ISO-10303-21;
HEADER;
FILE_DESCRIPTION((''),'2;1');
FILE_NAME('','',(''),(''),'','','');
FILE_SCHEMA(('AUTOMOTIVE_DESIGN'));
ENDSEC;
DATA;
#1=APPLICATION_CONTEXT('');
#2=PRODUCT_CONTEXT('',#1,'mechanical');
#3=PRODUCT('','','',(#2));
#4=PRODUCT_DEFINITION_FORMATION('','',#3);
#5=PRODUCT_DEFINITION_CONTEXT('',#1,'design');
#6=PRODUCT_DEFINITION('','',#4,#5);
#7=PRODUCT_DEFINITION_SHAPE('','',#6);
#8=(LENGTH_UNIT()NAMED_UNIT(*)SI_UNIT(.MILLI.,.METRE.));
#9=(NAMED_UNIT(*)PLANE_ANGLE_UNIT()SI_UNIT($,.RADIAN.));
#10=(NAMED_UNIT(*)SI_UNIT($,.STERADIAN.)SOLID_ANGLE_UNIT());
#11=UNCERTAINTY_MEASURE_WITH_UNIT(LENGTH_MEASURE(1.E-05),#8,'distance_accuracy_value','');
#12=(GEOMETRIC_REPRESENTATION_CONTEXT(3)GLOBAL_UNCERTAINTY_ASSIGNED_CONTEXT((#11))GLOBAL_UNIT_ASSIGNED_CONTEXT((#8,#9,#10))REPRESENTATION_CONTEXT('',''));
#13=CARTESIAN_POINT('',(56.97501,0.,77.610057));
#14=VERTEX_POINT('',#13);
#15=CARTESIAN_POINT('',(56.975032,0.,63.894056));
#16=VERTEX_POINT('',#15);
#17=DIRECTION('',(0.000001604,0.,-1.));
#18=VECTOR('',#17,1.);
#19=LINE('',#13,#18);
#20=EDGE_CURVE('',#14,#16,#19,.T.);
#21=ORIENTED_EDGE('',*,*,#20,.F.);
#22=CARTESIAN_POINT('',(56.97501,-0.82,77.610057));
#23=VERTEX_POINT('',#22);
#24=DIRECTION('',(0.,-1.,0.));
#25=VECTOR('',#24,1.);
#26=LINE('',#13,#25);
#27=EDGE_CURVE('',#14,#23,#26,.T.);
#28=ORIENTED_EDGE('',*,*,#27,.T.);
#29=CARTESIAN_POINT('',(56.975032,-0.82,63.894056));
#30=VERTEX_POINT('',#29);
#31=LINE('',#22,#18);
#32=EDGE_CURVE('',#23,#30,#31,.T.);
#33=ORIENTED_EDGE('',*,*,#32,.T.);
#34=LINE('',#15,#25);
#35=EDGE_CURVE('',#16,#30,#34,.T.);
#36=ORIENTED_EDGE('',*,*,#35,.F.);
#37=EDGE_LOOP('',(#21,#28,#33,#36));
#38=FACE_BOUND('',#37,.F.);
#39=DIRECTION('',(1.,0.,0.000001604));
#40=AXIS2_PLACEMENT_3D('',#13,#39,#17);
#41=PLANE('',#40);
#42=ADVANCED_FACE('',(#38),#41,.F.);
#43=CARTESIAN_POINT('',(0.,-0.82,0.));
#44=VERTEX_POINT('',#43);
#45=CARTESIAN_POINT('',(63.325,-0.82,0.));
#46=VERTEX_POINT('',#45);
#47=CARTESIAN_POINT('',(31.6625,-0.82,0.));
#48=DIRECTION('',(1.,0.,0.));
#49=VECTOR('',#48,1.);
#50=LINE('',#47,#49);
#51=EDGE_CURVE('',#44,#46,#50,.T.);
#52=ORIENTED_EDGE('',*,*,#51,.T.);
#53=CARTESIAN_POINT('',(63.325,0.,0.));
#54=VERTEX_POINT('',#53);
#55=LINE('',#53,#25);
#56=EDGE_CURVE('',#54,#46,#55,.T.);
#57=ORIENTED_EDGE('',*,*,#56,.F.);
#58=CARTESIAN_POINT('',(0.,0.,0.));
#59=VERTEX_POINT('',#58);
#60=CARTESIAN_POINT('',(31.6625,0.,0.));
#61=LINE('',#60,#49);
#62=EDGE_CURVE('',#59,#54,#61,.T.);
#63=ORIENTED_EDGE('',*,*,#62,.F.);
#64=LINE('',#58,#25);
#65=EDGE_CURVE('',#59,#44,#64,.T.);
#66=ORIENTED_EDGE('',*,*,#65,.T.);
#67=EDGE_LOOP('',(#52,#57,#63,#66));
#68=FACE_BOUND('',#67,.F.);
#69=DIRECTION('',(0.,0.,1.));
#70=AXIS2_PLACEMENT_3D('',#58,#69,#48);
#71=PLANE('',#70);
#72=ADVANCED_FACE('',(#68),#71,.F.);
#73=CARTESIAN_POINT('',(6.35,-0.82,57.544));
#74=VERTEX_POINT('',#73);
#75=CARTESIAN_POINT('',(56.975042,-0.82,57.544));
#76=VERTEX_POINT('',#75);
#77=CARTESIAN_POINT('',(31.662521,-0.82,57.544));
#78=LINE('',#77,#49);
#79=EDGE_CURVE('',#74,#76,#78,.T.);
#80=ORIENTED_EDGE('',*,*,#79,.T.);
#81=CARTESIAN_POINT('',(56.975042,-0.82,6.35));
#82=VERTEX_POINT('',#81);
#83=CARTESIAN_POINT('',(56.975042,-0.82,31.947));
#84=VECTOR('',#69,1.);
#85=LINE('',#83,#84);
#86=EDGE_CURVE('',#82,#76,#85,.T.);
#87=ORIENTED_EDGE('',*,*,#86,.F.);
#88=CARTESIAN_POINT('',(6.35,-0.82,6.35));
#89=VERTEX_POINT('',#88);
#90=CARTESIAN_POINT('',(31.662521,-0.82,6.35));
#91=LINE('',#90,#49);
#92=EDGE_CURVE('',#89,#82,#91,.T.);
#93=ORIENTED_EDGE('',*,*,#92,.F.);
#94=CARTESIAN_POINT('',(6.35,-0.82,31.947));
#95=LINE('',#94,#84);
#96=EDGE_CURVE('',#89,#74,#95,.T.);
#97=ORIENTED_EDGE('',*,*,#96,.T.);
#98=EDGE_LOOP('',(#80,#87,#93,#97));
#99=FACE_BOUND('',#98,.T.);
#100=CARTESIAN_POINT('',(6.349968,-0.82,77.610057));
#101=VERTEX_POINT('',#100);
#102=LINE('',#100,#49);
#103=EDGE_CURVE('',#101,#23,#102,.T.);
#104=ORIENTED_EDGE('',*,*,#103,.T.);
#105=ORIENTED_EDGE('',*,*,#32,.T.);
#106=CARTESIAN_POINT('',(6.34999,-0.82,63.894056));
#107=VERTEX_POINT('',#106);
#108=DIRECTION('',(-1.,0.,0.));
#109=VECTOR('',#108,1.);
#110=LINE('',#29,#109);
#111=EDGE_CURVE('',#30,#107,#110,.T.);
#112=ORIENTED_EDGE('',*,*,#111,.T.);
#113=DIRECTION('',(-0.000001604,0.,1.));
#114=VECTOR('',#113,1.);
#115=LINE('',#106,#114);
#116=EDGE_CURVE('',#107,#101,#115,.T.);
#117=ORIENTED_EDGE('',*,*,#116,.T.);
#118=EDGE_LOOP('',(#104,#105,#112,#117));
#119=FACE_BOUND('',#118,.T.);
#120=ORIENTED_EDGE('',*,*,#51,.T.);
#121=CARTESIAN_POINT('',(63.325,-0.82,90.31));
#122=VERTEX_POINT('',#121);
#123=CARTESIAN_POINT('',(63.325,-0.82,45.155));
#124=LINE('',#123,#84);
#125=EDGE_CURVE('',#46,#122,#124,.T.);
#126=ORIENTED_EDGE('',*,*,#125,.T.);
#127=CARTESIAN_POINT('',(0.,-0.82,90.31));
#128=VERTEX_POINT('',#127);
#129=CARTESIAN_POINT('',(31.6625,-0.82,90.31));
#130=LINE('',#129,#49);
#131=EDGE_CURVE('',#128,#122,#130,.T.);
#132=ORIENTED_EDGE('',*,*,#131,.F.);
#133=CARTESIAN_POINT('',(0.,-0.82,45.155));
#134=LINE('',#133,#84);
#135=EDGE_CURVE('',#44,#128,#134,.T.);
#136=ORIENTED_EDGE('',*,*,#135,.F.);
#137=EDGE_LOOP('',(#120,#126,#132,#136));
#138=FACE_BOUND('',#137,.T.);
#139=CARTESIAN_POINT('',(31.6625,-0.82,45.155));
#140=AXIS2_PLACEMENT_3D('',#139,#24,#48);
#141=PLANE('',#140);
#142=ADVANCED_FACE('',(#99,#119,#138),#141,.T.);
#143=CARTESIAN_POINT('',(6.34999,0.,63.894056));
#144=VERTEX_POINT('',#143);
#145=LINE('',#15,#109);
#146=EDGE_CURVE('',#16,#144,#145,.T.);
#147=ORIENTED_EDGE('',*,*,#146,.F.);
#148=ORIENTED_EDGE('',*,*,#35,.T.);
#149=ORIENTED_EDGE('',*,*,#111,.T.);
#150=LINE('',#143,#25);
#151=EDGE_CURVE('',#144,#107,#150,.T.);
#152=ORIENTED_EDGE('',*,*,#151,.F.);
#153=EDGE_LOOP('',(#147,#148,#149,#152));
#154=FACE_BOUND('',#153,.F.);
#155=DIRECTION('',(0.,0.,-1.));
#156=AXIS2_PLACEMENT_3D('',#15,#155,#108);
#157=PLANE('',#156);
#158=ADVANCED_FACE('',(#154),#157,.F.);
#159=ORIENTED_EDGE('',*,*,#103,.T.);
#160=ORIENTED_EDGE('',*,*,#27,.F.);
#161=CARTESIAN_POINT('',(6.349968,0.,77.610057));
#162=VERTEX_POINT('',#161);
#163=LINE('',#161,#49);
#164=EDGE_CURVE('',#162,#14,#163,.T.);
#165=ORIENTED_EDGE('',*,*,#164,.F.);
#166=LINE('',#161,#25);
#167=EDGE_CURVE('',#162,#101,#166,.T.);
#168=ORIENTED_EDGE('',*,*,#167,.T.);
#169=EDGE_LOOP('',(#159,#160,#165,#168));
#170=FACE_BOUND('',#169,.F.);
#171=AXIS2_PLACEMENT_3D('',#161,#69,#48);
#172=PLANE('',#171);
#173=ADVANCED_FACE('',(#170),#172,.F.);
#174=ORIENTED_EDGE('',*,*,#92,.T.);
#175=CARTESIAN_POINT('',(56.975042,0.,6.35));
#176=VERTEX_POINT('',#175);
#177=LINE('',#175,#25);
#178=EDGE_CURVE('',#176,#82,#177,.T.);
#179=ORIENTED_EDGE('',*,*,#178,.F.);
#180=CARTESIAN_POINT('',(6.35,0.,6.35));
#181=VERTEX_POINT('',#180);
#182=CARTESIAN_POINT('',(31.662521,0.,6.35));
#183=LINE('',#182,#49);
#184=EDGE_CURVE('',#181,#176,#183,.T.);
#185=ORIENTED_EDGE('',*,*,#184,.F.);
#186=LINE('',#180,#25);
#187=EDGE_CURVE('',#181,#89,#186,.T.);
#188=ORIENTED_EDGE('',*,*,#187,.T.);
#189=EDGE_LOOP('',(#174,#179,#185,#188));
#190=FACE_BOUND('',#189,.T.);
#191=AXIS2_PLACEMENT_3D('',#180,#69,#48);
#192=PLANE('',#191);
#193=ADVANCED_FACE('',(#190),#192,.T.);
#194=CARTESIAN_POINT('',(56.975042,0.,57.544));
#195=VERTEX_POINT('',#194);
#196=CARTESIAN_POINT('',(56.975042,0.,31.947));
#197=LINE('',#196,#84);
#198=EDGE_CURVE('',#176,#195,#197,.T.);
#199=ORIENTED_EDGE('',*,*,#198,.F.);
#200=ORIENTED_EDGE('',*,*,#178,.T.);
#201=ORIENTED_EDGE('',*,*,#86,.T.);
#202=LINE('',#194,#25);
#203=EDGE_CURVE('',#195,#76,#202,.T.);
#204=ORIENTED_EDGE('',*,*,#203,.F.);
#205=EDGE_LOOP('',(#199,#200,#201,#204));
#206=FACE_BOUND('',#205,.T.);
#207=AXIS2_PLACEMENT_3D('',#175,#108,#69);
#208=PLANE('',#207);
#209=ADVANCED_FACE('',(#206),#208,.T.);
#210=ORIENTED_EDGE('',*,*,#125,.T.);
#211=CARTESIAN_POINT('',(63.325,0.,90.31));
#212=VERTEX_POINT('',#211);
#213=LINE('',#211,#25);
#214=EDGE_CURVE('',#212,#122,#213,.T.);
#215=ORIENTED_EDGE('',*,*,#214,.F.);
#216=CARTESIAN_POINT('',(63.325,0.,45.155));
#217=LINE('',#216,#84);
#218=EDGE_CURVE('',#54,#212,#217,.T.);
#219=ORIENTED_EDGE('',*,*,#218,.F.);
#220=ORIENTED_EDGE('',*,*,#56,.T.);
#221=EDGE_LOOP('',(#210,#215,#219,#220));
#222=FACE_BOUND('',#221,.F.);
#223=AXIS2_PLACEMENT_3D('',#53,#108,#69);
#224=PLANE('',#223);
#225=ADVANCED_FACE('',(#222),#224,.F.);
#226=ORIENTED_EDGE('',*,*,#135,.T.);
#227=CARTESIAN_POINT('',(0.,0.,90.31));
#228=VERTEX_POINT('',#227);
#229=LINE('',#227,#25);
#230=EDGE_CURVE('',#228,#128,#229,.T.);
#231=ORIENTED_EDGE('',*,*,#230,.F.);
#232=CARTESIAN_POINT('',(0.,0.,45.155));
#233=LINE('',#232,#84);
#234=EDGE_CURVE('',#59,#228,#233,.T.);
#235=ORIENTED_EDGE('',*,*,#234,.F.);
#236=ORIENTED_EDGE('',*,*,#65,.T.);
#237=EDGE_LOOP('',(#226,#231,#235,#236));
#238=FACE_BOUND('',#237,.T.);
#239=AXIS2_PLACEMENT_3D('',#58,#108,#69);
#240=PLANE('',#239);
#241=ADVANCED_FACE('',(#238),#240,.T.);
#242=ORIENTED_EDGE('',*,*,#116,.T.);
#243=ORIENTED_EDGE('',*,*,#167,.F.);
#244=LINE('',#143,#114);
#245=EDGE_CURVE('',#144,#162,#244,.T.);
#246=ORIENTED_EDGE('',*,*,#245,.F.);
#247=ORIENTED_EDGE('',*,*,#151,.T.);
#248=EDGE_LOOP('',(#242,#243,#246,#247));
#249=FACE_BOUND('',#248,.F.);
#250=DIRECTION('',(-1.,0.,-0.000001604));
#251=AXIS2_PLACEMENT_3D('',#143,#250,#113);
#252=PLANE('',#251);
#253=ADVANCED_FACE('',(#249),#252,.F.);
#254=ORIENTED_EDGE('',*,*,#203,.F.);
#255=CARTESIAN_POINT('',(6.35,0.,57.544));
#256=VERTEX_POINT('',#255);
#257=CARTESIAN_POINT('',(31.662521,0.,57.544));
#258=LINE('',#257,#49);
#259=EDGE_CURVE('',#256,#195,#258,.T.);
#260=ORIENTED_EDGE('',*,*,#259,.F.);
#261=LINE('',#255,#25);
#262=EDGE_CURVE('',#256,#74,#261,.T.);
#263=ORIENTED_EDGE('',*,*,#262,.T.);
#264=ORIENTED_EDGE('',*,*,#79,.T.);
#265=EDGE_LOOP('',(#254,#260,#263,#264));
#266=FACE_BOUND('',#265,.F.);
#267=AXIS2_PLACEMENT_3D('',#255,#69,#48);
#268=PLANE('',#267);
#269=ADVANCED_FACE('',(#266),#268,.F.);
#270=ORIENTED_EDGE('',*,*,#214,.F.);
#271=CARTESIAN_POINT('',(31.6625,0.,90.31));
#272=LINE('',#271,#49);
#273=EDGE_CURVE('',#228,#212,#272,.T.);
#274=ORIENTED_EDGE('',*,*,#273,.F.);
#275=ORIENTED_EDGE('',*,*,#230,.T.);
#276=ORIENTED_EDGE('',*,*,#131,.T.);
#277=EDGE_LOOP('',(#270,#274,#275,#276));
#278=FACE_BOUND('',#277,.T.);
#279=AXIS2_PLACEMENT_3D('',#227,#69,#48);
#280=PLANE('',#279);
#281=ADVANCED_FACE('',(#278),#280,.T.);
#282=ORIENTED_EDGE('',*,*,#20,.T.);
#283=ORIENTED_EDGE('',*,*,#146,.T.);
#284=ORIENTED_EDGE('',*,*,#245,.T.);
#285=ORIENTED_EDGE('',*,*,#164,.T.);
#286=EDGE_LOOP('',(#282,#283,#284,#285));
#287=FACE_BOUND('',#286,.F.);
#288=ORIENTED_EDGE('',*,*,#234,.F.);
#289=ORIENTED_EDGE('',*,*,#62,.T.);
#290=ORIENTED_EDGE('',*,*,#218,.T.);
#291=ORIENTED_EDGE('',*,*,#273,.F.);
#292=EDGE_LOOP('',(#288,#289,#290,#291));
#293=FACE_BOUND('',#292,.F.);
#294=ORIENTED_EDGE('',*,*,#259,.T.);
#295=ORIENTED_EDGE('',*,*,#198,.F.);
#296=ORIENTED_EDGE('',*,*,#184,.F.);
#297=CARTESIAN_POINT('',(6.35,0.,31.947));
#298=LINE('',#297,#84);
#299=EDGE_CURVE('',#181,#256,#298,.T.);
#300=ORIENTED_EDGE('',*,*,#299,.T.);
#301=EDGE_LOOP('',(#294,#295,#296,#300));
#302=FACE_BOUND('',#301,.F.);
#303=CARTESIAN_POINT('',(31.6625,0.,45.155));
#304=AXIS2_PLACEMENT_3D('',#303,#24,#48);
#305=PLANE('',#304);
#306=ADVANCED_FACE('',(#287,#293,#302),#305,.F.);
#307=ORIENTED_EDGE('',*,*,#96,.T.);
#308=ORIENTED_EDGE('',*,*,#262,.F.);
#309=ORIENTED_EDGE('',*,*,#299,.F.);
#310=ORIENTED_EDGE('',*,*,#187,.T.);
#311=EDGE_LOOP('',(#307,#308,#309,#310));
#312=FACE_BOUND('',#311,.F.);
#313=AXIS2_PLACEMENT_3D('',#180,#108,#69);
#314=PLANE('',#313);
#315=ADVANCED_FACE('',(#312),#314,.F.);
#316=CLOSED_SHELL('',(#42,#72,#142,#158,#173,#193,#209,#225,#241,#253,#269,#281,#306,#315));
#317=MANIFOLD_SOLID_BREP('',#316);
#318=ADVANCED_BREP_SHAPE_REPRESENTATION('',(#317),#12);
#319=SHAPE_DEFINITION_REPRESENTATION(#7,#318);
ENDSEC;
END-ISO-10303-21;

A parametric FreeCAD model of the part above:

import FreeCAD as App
import Part
import Sketcher

V = App.Vector
Q = App.Units.Quantity


def add_polygon(sketch, points):
    """Adds a closed chain of lines whose ends are joined by coincident constraints."""
    first, n = sketch.GeometryCount, len(points)
    for a, b in zip(points, points[1:] + points[:1]):
        sketch.addGeometry(Part.LineSegment(App.Vector(*a, 0), App.Vector(*b, 0)), False)
    for i in range(n):
        sketch.addConstraint(Sketcher.Constraint("Coincident", first + i, 2, first + (i + 1) % n, 1))

doc = App.newDocument("Part")
params = doc.addObject("Spreadsheet::Sheet", "Params")
for row, (alias, value) in enumerate([
    ("sketch1_length", "0.54 in"),
    ("pad1_length", "0.82 mm"),
], start=1):
    params.set(f"A{row}", alias)
    params.set(f"B{row}", "=" + value)
    params.setAlias(f"B{row}", alias)

body = doc.addObject("PartDesign::Body", "Body")

# Sketch on XZ plane
sketch1 = body.newObject("Sketcher::SketchObject", "Sketch")
sketch1.AttachmentSupport = (doc.getObject("XZ_Plane"), [""])
sketch1.MapMode = "FlatFace"
add_polygon(sketch1, [(0, 90), (0, 0), (63, 0), (63, 90)])  # lines 0-3
add_polygon(sketch1, [(57, 6), (6, 6), (6, 58), (57, 58)])  # lines 4-7
add_polygon(sketch1, [(57, 64), (6, 64), (6, 78), (57, 78)])  # lines 8-11
sketch1.addConstraint([
    Sketcher.Constraint("Vertical", 0),
    Sketcher.Constraint("Horizontal", 1),
    Sketcher.Constraint("Vertical", 2),
    Sketcher.Constraint("Horizontal", 3),
    Sketcher.Constraint("Horizontal", 4),
    Sketcher.Constraint("Vertical", 5),
    Sketcher.Constraint("Horizontal", 6),
    Sketcher.Constraint("Vertical", 7),
    Sketcher.Constraint("Horizontal", 8),
    Sketcher.Constraint("Horizontal", 10),
    Sketcher.Constraint("Coincident", 0, 2, -1, 1),
    Sketcher.Constraint("Parallel", 9, 11),
    Sketcher.Constraint("Equal", 6, 8),
    Sketcher.Constraint("Distance", 9, Q("0.54 in")),
    Sketcher.Constraint("DistanceX", -1, 1, 4, 2, Q("0.25 in")),
    Sketcher.Constraint("DistanceY", -1, 1, 4, 2, Q("0.25 in")),
    Sketcher.Constraint("DistanceY", 5, 2, 3, 2, Q("1.29 in")),
    Sketcher.Constraint("DistanceX", 1, 1, 1, 2, 63.325),
    Sketcher.Constraint("DistanceY", 0, 2, 0, 1, 90.31),
    Sketcher.Constraint("DistanceX", 4, 2, 4, 1, 50.625042),
    Sketcher.Constraint("DistanceX", -1, 1, 8, 2, 6.34999),
    Sketcher.Constraint("DistanceX", -1, 1, 10, 2, 56.97501),
    Sketcher.Constraint("DistanceY", -1, 1, 8, 2, 63.894056),
])
sketch1.setExpression("Constraints[25]", "Params.sketch1_length")
pad1 = body.newObject("PartDesign::Pad", "Pad")
pad1.Profile = sketch1
pad1.setExpression("Length", "Params.pad1_length")

doc.recompute()
